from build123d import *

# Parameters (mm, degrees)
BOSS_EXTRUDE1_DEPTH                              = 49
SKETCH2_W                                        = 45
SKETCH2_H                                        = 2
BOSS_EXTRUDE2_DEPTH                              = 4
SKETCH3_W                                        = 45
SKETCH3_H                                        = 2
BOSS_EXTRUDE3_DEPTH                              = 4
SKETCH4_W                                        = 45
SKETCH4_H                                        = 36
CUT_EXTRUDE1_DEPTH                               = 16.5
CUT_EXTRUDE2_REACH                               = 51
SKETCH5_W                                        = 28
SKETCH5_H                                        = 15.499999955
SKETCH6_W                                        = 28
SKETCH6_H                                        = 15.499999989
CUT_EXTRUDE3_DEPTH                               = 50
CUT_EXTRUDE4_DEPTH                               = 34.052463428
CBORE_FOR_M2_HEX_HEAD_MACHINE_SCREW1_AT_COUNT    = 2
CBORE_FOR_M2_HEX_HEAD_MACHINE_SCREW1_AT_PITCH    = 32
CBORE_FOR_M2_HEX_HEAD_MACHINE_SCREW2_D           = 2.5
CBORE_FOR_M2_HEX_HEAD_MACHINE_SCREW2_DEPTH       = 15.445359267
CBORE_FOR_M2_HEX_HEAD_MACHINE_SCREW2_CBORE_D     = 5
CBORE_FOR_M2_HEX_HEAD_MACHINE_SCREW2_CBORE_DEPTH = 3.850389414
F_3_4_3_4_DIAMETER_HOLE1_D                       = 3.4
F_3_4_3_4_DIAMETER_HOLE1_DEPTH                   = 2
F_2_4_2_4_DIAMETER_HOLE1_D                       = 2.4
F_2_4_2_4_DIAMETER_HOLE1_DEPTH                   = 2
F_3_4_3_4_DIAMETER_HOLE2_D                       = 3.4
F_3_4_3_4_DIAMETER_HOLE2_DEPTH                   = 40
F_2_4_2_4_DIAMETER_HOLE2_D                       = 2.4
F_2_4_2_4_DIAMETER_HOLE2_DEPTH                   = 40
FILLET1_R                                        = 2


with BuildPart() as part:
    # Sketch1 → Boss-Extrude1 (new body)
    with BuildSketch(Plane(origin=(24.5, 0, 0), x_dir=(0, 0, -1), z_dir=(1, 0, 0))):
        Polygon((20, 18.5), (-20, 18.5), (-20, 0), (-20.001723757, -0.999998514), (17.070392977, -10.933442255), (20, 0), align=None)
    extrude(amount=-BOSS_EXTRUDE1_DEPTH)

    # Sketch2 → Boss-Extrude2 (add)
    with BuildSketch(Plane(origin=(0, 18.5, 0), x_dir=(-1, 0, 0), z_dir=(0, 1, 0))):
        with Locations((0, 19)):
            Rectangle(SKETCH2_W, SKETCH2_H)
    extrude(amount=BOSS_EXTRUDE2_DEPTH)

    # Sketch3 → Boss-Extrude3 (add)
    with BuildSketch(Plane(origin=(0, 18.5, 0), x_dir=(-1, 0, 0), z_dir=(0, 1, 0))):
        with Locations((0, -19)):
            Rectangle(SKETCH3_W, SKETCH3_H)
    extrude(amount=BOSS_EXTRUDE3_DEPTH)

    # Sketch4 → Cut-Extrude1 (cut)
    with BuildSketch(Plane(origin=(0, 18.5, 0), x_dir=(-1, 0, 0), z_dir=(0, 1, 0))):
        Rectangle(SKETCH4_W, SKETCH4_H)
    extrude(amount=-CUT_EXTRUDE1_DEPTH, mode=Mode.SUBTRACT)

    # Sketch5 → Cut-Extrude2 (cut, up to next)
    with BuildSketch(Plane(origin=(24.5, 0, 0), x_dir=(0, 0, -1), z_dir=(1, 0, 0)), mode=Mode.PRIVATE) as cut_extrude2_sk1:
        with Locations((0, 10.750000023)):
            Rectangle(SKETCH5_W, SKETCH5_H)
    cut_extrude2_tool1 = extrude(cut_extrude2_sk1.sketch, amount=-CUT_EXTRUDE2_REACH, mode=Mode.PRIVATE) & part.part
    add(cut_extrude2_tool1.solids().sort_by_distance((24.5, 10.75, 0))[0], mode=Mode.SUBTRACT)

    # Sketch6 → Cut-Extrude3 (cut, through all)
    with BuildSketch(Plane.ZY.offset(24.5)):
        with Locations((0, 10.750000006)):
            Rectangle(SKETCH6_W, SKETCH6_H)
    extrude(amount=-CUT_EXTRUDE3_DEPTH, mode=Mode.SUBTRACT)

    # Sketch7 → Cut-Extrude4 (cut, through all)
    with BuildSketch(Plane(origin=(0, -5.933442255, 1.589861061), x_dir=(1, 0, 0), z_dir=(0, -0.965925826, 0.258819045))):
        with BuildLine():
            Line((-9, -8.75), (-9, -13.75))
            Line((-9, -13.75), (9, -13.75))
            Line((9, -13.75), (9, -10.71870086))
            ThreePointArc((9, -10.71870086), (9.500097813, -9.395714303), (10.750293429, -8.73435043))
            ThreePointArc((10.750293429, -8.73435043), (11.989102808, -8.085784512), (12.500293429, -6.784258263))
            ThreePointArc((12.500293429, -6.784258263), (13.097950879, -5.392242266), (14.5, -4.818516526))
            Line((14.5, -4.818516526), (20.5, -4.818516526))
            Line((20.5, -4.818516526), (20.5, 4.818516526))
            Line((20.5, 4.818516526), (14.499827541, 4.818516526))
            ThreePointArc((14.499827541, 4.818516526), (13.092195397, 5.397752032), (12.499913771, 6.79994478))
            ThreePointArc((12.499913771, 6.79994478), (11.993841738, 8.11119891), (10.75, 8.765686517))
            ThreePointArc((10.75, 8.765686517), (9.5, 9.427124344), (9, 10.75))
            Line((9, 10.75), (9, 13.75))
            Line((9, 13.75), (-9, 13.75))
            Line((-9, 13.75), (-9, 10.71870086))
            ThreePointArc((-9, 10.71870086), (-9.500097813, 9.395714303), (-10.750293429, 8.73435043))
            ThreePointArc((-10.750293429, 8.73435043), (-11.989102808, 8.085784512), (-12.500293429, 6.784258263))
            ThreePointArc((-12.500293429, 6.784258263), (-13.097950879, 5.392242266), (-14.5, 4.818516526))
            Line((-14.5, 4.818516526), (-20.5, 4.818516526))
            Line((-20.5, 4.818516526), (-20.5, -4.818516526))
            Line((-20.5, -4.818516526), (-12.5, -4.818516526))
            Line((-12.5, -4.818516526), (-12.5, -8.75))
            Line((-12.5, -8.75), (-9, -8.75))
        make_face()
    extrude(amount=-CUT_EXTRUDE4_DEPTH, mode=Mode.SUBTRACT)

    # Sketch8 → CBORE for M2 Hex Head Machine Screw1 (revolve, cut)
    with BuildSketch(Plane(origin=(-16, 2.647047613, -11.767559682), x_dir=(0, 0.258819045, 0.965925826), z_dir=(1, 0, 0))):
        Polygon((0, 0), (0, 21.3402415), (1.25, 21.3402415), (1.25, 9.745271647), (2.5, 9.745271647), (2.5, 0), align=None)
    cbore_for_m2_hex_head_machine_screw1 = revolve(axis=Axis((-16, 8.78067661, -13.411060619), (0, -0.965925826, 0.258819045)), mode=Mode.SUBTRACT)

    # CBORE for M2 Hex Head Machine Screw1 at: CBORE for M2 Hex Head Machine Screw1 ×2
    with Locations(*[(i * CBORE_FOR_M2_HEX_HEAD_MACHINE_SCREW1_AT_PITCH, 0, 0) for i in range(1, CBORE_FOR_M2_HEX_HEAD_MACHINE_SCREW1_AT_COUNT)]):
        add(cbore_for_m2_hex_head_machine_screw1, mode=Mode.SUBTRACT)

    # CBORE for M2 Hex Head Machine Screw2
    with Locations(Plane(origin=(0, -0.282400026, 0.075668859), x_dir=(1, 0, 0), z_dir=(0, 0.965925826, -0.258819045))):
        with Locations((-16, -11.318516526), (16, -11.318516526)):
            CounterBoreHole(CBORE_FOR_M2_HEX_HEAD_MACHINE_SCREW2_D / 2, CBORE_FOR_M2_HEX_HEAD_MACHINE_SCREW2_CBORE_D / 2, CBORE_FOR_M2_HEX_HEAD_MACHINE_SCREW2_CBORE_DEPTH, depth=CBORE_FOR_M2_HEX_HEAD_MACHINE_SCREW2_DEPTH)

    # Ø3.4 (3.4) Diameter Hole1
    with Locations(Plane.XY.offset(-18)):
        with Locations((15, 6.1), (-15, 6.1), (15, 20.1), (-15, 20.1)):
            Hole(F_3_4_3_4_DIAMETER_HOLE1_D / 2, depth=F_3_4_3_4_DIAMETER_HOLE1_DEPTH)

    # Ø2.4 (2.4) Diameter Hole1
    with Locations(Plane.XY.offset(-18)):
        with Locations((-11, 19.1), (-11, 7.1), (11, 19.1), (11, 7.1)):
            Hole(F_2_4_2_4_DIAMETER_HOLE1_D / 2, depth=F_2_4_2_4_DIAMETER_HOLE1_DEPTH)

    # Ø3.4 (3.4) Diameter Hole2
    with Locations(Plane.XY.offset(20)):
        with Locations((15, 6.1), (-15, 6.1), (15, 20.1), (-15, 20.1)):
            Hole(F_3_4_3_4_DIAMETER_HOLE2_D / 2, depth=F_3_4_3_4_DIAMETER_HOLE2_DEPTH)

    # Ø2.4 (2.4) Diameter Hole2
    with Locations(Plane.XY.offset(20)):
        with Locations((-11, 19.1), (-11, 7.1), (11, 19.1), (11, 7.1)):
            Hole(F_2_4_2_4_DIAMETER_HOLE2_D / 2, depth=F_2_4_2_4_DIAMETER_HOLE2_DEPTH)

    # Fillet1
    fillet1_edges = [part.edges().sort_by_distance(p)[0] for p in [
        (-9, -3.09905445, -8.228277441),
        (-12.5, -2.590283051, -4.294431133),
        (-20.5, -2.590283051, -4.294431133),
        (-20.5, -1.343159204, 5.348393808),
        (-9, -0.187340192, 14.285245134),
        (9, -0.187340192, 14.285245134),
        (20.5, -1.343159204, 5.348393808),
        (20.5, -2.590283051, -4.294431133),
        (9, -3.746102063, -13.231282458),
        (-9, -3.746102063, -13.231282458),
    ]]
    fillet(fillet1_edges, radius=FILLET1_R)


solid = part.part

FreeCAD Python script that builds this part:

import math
import FreeCAD as App
import Part
import Sketcher

V = App.Vector
Q = App.Units.Quantity


def edges_at(feature, points):
    """Names of the edges that pass closest to the given points."""
    edges = feature.Shape.Edges
    near = lambda p: min(range(len(edges)), key=lambda i: edges[i].distToShape(Part.Vertex(*p))[0])
    return sorted({f"Edge{near(p) + 1}" for p in points})


def add_polygon(sketch, points):
    """Adds a closed chain of lines whose ends are joined by coincident constraints."""
    first, n = sketch.GeometryCount, len(points)
    for a, b in zip(points, points[1:] + points[:1]):
        sketch.addGeometry(Part.LineSegment(App.Vector(*a, 0), App.Vector(*b, 0)), False)
    for i in range(n):
        sketch.addConstraint(Sketcher.Constraint("Coincident", first + i, 2, first + (i + 1) % n, 1))

doc = App.newDocument("Part")
body = doc.addObject("PartDesign::Body", "Body")

# Sketch on YZ plane
sketch1 = doc.addObject("Sketcher::SketchObject", "Sketch")
body.addObject(sketch1)
sketch1.AttachmentSupport = (doc.YZ_Plane, [""])
sketch1.MapMode = "FlatFace"
sketch1.AttachmentOffset = App.Placement(V(0, 0, 24.5), App.Rotation())
add_polygon(sketch1, [(18.5, -20), (18.5, 20), (0, 20), (-1, 20), (-10.9, -17.1), (0, -20)])  # lines 0-5
sketch1.addConstraint([
    Sketcher.Constraint("Vertical", 0),
    Sketcher.Constraint("Horizontal", 1),
    Sketcher.Constraint("Horizontal", 5),
    Sketcher.Constraint("Symmetric", 1, 2, 4, 2, -1, 1),
    Sketcher.Constraint("PointOnObject", 1, 2, -2),
    Sketcher.Constraint("Perpendicular", 3, 4),
    Sketcher.Constraint("DistanceY", 0, 1, 0, 2, Q("40 mm")),
    Sketcher.Constraint("Angle", 3, Q("-105 deg")),
    Sketcher.Constraint("Distance", 2, Q("1 mm")),
    Sketcher.Constraint("DistanceX", 1, 2, 1, 1, Q("18.5 mm")),
    Sketcher.Constraint("Distance", 3, Q("38.379879 mm")),
])
pad1 = doc.addObject("PartDesign::Pad", "Pad")
body.addObject(pad1)
pad1.Profile = sketch1
pad1.Length = 49
pad1.Reversed = True

# Sketch on XZ plane
sketch2 = doc.addObject("Sketcher::SketchObject", "Sketch001")
body.addObject(sketch2)
sketch2.AttachmentSupport = (doc.XZ_Plane, [""])
sketch2.MapMode = "FlatFace"
sketch2.AttachmentOffset = App.Placement(V(0, 0, -18.5), App.Rotation())
add_polygon(sketch2, [(22.5, 20), (22.5, 18), (-22.5, 18), (-22.5, 20)])  # lines 0-3
sketch2.addConstraint([
    Sketcher.Constraint("Vertical", 0),
    Sketcher.Constraint("Horizontal", 1),
    Sketcher.Constraint("Vertical", 2),
    Sketcher.Constraint("Horizontal", 3),
    Sketcher.Constraint("DistanceX", 1, 2, 1, 1, Q("45 mm")),
    Sketcher.Constraint("DistanceY", 0, 2, 0, 1, Q("2 mm")),
    Sketcher.Constraint("DistanceY", -1, 1, 0, 2, Q("18 mm")),
    Sketcher.Constraint("DistanceX", -1, 1, 0, 2, Q("22.5 mm")),
])
pad2 = doc.addObject("PartDesign::Pad", "Pad001")
body.addObject(pad2)
pad2.Profile = sketch2
pad2.Length = 4
pad2.Reversed = True

# Sketch on XZ plane
sketch3 = doc.addObject("Sketcher::SketchObject", "Sketch002")
body.addObject(sketch3)
sketch3.AttachmentSupport = (doc.XZ_Plane, [""])
sketch3.MapMode = "FlatFace"
sketch3.AttachmentOffset = App.Placement(V(0, 0, -18.5), App.Rotation())
add_polygon(sketch3, [(22.5, -18), (22.5, -20), (-22.5, -20), (-22.5, -18)])  # lines 0-3
sketch3.addConstraint([
    Sketcher.Constraint("Vertical", 0),
    Sketcher.Constraint("Horizontal", 1),
    Sketcher.Constraint("Vertical", 2),
    Sketcher.Constraint("Horizontal", 3),
    Sketcher.Constraint("DistanceX", 1, 2, 1, 1, Q("45 mm")),
    Sketcher.Constraint("DistanceY", 0, 2, 0, 1, Q("2 mm")),
    Sketcher.Constraint("DistanceY", 0, 2, -1, 1, Q("20 mm")),
    Sketcher.Constraint("DistanceX", -1, 1, 0, 2, Q("22.5 mm")),
])
pad3 = doc.addObject("PartDesign::Pad", "Pad002")
body.addObject(pad3)
pad3.Profile = sketch3
pad3.Length = 4
pad3.Reversed = True

# Sketch on XZ plane
sketch4 = doc.addObject("Sketcher::SketchObject", "Sketch003")
body.addObject(sketch4)
sketch4.AttachmentSupport = (doc.XZ_Plane, [""])
sketch4.MapMode = "FlatFace"
sketch4.AttachmentOffset = App.Placement(V(0, 0, -18.5), App.Rotation())
add_polygon(sketch4, [(22, 18), (22, -18), (-22, -18), (-22, 18)])  # lines 0-3
sketch4.addConstraint([
    Sketcher.Constraint("Vertical", 0),
    Sketcher.Constraint("Horizontal", 1),
    Sketcher.Constraint("Vertical", 2),
    Sketcher.Constraint("Horizontal", 3),
    Sketcher.Constraint("Symmetric", 0, 2, 2, 2, -1, 1),
    Sketcher.Constraint("DistanceX", 1, 2, 1, 1, Q("45 mm")),
    Sketcher.Constraint("DistanceY", 0, 2, 0, 1, Q("36 mm")),
])
pocket1 = doc.addObject("PartDesign::Pocket", "Pocket")
body.addObject(pocket1)
pocket1.Profile = sketch4
pocket1.Length = 16.5
pocket1.Reversed = True

# Sketch on YZ plane
sketch5 = doc.addObject("Sketcher::SketchObject", "Sketch004")
body.addObject(sketch5)
sketch5.AttachmentSupport = (doc.YZ_Plane, [""])
sketch5.MapMode = "FlatFace"
sketch5.AttachmentOffset = App.Placement(V(0, 0, 24.5), App.Rotation())
add_polygon(sketch5, [(19, 14), (3, 14), (3, -14), (19, -14)])  # lines 0-3
sketch5.addConstraint([
    Sketcher.Constraint("Horizontal", 0),
    Sketcher.Constraint("Vertical", 1),
    Sketcher.Constraint("Horizontal", 2),
    Sketcher.Constraint("Vertical", 3),
    Sketcher.Constraint("DistanceY", 1, 2, 1, 1, Q("28 mm")),
    Sketcher.Constraint("DistanceX", 0, 2, 0, 1, Q("15.5 mm")),
    Sketcher.Constraint("DistanceX", -1, 1, 0, 2, Q("3 mm")),
    Sketcher.Constraint("DistanceY", -1, 1, 0, 2, Q("14 mm")),
])
pocket2 = doc.addObject("PartDesign::Pocket", "Pocket001")
body.addObject(pocket2)
pocket2.Profile = sketch5
pocket2.Type = "UpToFirst"

# Sketch on YZ plane
sketch6 = doc.addObject("Sketcher::SketchObject", "Sketch005")
body.addObject(sketch6)
sketch6.AttachmentSupport = (doc.YZ_Plane, [""])
sketch6.MapMode = "FlatFace"
sketch6.AttachmentOffset = App.Placement(V(0, 0, -24.5), App.Rotation())
add_polygon(sketch6, [(19, -14), (3, -14), (3, 14), (19, 14)])  # lines 0-3
sketch6.addConstraint([
    Sketcher.Constraint("Horizontal", 0),
    Sketcher.Constraint("Vertical", 1),
    Sketcher.Constraint("Horizontal", 2),
    Sketcher.Constraint("Vertical", 3),
    Sketcher.Constraint("DistanceY", 1, 1, 1, 2, Q("28 mm")),
    Sketcher.Constraint("DistanceX", 0, 2, 0, 1, Q("15.5 mm")),
    Sketcher.Constraint("DistanceX", -1, 1, 0, 2, Q("3 mm")),
    Sketcher.Constraint("DistanceY", 0, 2, -1, 1, Q("14 mm")),
])
pocket3 = doc.addObject("PartDesign::Pocket", "Pocket002")
body.addObject(pocket3)
pocket3.Profile = sketch6
pocket3.Type = "ThroughAll"
pocket3.Reversed = True

# Sketch on an angled plane
sketch7 = doc.addObject("Sketcher::SketchObject", "Sketch006")
body.addObject(sketch7)
sketch7.Placement = App.Placement(V(0, -5.933442, 1.589861), App.Rotation(V(1, 0, 0), V(0, 0.258819045, 0.965925826), V(0, -0.965925826, 0.258819045), "ZXY"))
sketch7.addGeometry([
    Part.LineSegment(V(-9, -8.7, 0), V(-9, -13.7, 0)),  # 0
    Part.LineSegment(V(-9, -13.7, 0), V(9, -13.7, 0)),  # 1
    Part.LineSegment(V(9, -13.7, 0), V(9, -10.7, 0)),  # 2
    Part.ArcOfCircle(Part.Circle(V(11, -10.7, 0), V(0, 0, 1), 2), math.radians(97), math.radians(180)),  # 3
    Part.ArcOfCircle(Part.Circle(V(10.5, -6.7, 0), V(0, 0, 1), 2), math.radians(-83), math.radians(-1)),  # 4
    Part.ArcOfCircle(Part.Circle(V(14.5, -6.8, 0), V(0, 0, 1), 2), math.radians(90), math.radians(179)),  # 5
    Part.LineSegment(V(14.5, -4.8, 0), V(20.5, -4.8, 0)),  # 6
    Part.LineSegment(V(20.5, -4.8, 0), V(20.5, 4.8, 0)),  # 7
    Part.LineSegment(V(20.5, 4.8, 0), V(14.5, 4.8, 0)),  # 8
    Part.ArcOfCircle(Part.Circle(V(14.5, 6.8, 0), V(0, 0, 1), 2), math.radians(-179), math.radians(-90)),  # 9
    Part.ArcOfCircle(Part.Circle(V(10.5, 6.8, 0), V(0, 0, 1), 2), math.radians(1), math.radians(83)),  # 10
    Part.ArcOfCircle(Part.Circle(V(11, 10.7, 0), V(0, 0, 1), 2), math.radians(180), math.radians(263)),  # 11
    Part.LineSegment(V(9, 10.7, 0), V(9, 13.7, 0)),  # 12
    Part.LineSegment(V(9, 13.7, 0), V(-9, 13.7, 0)),  # 13
    Part.LineSegment(V(-9, 13.7, 0), V(-9, 10.7, 0)),  # 14
    Part.ArcOfCircle(Part.Circle(V(-11, 10.7, 0), V(0, 0, 1), 2), math.radians(-83), math.radians(0)),  # 15
    Part.ArcOfCircle(Part.Circle(V(-10.5, 6.7, 0), V(0, 0, 1), 2), math.radians(97), math.radians(179)),  # 16
    Part.ArcOfCircle(Part.Circle(V(-14.5, 6.8, 0), V(0, 0, 1), 2), math.radians(-90), math.radians(-1)),  # 17
    Part.LineSegment(V(-14.5, 4.8, 0), V(-20.5, 4.8, 0)),  # 18
    Part.LineSegment(V(-20.5, 4.8, 0), V(-20.5, -4.8, 0)),  # 19
    Part.LineSegment(V(-20.5, -4.8, 0), V(-12.5, -4.8, 0)),  # 20
    Part.LineSegment(V(-12.5, -4.8, 0), V(-12.5, -8.7, 0)),  # 21
    Part.LineSegment(V(-12.5, -8.7, 0), V(-9, -8.7, 0)),  # 22
], False)
sketch7.addConstraint([
    Sketcher.Constraint("Coincident", 0, 2, 1, 1),
    Sketcher.Constraint("Coincident", 1, 2, 2, 1),
    Sketcher.Constraint("Tangent", 2, 2, 3, 2),
    Sketcher.Constraint("Tangent", 3, 1, 4, 1),
    Sketcher.Constraint("Tangent", 4, 2, 5, 2),
    Sketcher.Constraint("Tangent", 5, 1, 6, 1),
    Sketcher.Constraint("Coincident", 6, 2, 7, 1),
    Sketcher.Constraint("Coincident", 7, 2, 8, 1),
    Sketcher.Constraint("Tangent", 8, 2, 9, 2),
    Sketcher.Constraint("Tangent", 9, 1, 10, 1),
    Sketcher.Constraint("Tangent", 10, 2, 11, 2),
    Sketcher.Constraint("Tangent", 11, 1, 12, 1),
    Sketcher.Constraint("Coincident", 12, 2, 13, 1),
    Sketcher.Constraint("Coincident", 13, 2, 14, 1),
    Sketcher.Constraint("Tangent", 14, 2, 15, 2),
    Sketcher.Constraint("Tangent", 15, 1, 16, 1),
    Sketcher.Constraint("Tangent", 16, 2, 17, 2),
    Sketcher.Constraint("Tangent", 17, 1, 18, 1),
    Sketcher.Constraint("Coincident", 18, 2, 19, 1),
    Sketcher.Constraint("Coincident", 19, 2, 20, 1),
    Sketcher.Constraint("Coincident", 20, 2, 21, 1),
    Sketcher.Constraint("Coincident", 21, 2, 22, 1),
    Sketcher.Constraint("Coincident", 22, 2, 0, 1),
    Sketcher.Constraint("Vertical", 0),
    Sketcher.Constraint("Horizontal", 1),
    Sketcher.Constraint("Vertical", 2),
    Sketcher.Constraint("Horizontal", 6),
    Sketcher.Constraint("Vertical", 7),
    Sketcher.Constraint("Horizontal", 8),
    Sketcher.Constraint("Vertical", 12),
    Sketcher.Constraint("Horizontal", 13),
    Sketcher.Constraint("Vertical", 14),
    Sketcher.Constraint("Horizontal", 18),
    Sketcher.Constraint("Vertical", 19),
    Sketcher.Constraint("Horizontal", 20),
    Sketcher.Constraint("Vertical", 21),
    Sketcher.Constraint("Horizontal", 22),
    Sketcher.Constraint("Equal", 3, 4),
    Sketcher.Constraint("Equal", 4, 5),
    Sketcher.Constraint("Equal", 5, 9),
    Sketcher.Constraint("Equal", 9, 10),
    Sketcher.Constraint("Equal", 10, 11),
    Sketcher.Constraint("Equal", 11, 15),
    Sketcher.Constraint("Equal", 15, 16),
    Sketcher.Constraint("Equal", 16, 17),
    Sketcher.Constraint("Symmetric", 3, 3, 15, 3, -1, 1),
    Sketcher.Constraint("Symmetric", 5, 3, 17, 3, -1, 1),
    Sketcher.Constraint("Symmetric", 0, 2, 12, 2, -1, 1),
    Sketcher.Constraint("Symmetric", 7, 2, 19, 2, -1, 1),
    Sketcher.Constraint("Horizontal", 9, 3, 17, 3),
    Sketcher.Constraint("Vertical", 3, 3, 11, 3),
    Sketcher.Constraint("Radius", 3, Q("2 mm")),
    Sketcher.Constraint("DistanceX", 1, 1, 1, 2, Q("18 mm")),
    Sketcher.Constraint("DistanceX", 6, 1, 6, 2, Q("6 mm")),
    Sketcher.Constraint("DistanceX", 20, 1, 20, 2, Q("8 mm")),
    Sketcher.Constraint("DistanceY", 0, 2, 0, 1, Q("5 mm")),
    Sketcher.Constraint("DistanceY", 12, 1, 12, 2, Q("3 mm")),
    Sketcher.Constraint("DistanceX", 22, 1, 22, 2, Q("3.5 mm")),
    Sketcher.Constraint("DistanceX", 10, 3, 5, 3, Q("4 mm")),
    Sketcher.Constraint("DistanceY", 16, 3, 11, 3, Q("4 mm")),
    Sketcher.Constraint("DistanceY", 4, 3, 11, 3, Q("17.5 mm")),
    Sketcher.Constraint("DistanceY", 7, 1, 7, 2, Q("9.637033 mm")),
])
pocket4 = doc.addObject("PartDesign::Pocket", "Pocket003")
body.addObject(pocket4)
pocket4.Profile = sketch7
pocket4.Type = "ThroughAll"

# Sketch on YZ plane
sketch8 = doc.addObject("Sketcher::SketchObject", "Sketch007")
body.addObject(sketch8)
sketch8.AttachmentSupport = (doc.YZ_Plane, [""])
sketch8.MapMode = "FlatFace"
sketch8.AttachmentOffset = App.Placement(V(0, 0, -16), App.Rotation())
add_polygon(sketch8, [(-18, -6.2), (2.6, -11.8), (3.3, -9.4), (-6.1, -6.8), (-6.4, -8), (-17.6, -5)])  # lines 0-5
sketch8.addGeometry(Part.LineSegment(V(2.6, -11.8, 0), V(-18, -6.2, 0)), True)  # axis
sketch8.addConstraint([
    Sketcher.Constraint("Coincident", 6, 1, 0, 2),
    Sketcher.Constraint("Coincident", 6, 2, 5, 2),
    Sketcher.Constraint("Perpendicular", 0, 1),
    Sketcher.Constraint("Perpendicular", 1, 2),
    Sketcher.Constraint("Perpendicular", 2, 3),
    Sketcher.Constraint("Perpendicular", 3, 4),
    Sketcher.Constraint("Perpendicular", 4, 5),
    Sketcher.Constraint("Equal", 3, 5),
    Sketcher.Constraint("Angle", 0, Q("-15 deg")),
    Sketcher.Constraint("Distance", 1, Q("2.5 mm")),
    Sketcher.Constraint("DistanceY", 3, 2, 4, 2, Q("3.000999 mm")),
    Sketcher.Constraint("DistanceY", 5, 2, -1, 1, Q("6.244299 mm")),
    Sketcher.Constraint("Distance", 0, Q("21.340241 mm")),
    Sketcher.Constraint("DistanceX", 3, 2, -1, 1, Q("6.442638 mm")),
])
groove = doc.addObject("PartDesign::Groove", "Groove")
body.addObject(groove)
groove.Profile = sketch8
groove.ReferenceAxis = (sketch8, ["Axis0"])
groove.Angle = 360
doc.recompute()

linearpattern = doc.addObject("PartDesign::LinearPattern", "LinearPattern")
body.addObject(linearpattern)
linearpattern.Originals = [groove]
linearpattern.Direction = (doc.X_Axis, [""])
linearpattern.Mode = "offset"
linearpattern.Offset = 32
linearpattern.Occurrences = 2
body.Tip = linearpattern

# Sketch on an angled plane
sketch9 = doc.addObject("Sketcher::SketchObject", "Sketch008")
body.addObject(sketch9)
sketch9.Placement = App.Placement(V(0, -0.2824, 0.075669), App.Rotation(V(1, 0, 0), V(0, -0.258819045, -0.965925826), V(0, 0.965925826, -0.258819045), "ZXY"))
sketch9.addGeometry([
    Part.Circle(V(-16, -11.3, 0), V(0, 0, 1), 1.2),
    Part.Circle(V(16, -11.3, 0), V(0, 0, 1), 1.2),
], False)
sketch9.addConstraint([
    Sketcher.Constraint("Equal", 0, 1),
    Sketcher.Constraint("Symmetric", 0, 3, 1, 3, -2),
    Sketcher.Constraint("Diameter", 0, Q("2.5 mm")),
    Sketcher.Constraint("DistanceX", 0, 3, -1, 1, Q("16 mm")),
    Sketcher.Constraint("DistanceY", 0, 3, -1, 1, Q("11.318517 mm")),
])
doc.recompute()
hole = doc.addObject("PartDesign::Hole", "Hole")
body.addObject(hole)
hole.Profile = sketch9
hole.ThreadType = "None"
hole.Diameter = 2.5
hole.DepthType = "Dimension"
hole.Depth = 15.445359
hole.DrillPoint = "Flat"
hole.HoleCutType = "Counterbore"
hole.HoleCutDiameter = 5
hole.HoleCutDepth = 3.850389

# Sketch on XY plane
sketch10 = doc.addObject("Sketcher::SketchObject", "Sketch009")
body.addObject(sketch10)
sketch10.AttachmentSupport = (doc.XY_Plane, [""])
sketch10.MapMode = "FlatFace"
sketch10.AttachmentOffset = App.Placement(V(0, 0, -18), App.Rotation())
sketch10.addGeometry([
    Part.Circle(V(15, 6.1, 0), V(0, 0, 1), 1.7),
    Part.Circle(V(-15, 6.1, 0), V(0, 0, 1), 1.7),
    Part.Circle(V(15, 20.1, 0), V(0, 0, 1), 1.7),
    Part.Circle(V(-15, 20.1, 0), V(0, 0, 1), 1.7),
], False)
sketch10.addConstraint([
    Sketcher.Constraint("Equal", 0, 1),
    Sketcher.Constraint("Equal", 1, 2),
    Sketcher.Constraint("Equal", 2, 3),
    Sketcher.Constraint("Symmetric", 0, 3, 1, 3, -2),
    Sketcher.Constraint("Symmetric", 2, 3, 3, 3, -2),
    Sketcher.Constraint("Vertical", 0, 3, 2, 3),
    Sketcher.Constraint("Diameter", 0, Q("3.4 mm")),
    Sketcher.Constraint("DistanceX", -1, 1, 0, 3, Q("15 mm")),
    Sketcher.Constraint("DistanceY", 0, 3, 2, 3, Q("14 mm")),
    Sketcher.Constraint("DistanceY", -1, 1, 0, 3, Q("6.1 mm")),
])
doc.recompute()
hole2 = doc.addObject("PartDesign::Hole", "Hole001")
body.addObject(hole2)
hole2.Profile = sketch10
hole2.ThreadType = "None"
hole2.Diameter = 3.4
hole2.DepthType = "Dimension"
hole2.Depth = 2
hole2.DrillPoint = "Flat"

# Sketch on XY plane
sketch11 = doc.addObject("Sketcher::SketchObject", "Sketch010")
body.addObject(sketch11)
sketch11.AttachmentSupport = (doc.XY_Plane, [""])
sketch11.MapMode = "FlatFace"
sketch11.AttachmentOffset = App.Placement(V(0, 0, -18), App.Rotation())
sketch11.addGeometry([
    Part.Circle(V(-11, 19.1, 0), V(0, 0, 1), 1.2),
    Part.Circle(V(-11, 7.1, 0), V(0, 0, 1), 1.2),
    Part.Circle(V(11, 19.1, 0), V(0, 0, 1), 1.2),
    Part.Circle(V(11, 7.1, 0), V(0, 0, 1), 1.2),
], False)
sketch11.addConstraint([
    Sketcher.Constraint("Equal", 0, 1),
    Sketcher.Constraint("Equal", 1, 2),
    Sketcher.Constraint("Equal", 2, 3),
    Sketcher.Constraint("Symmetric", 0, 3, 2, 3, -2),
    Sketcher.Constraint("Symmetric", 1, 3, 3, 3, -2),
    Sketcher.Constraint("Vertical", 0, 3, 1, 3),
    Sketcher.Constraint("Diameter", 0, Q("2.4 mm")),
    Sketcher.Constraint("DistanceX", 0, 3, -1, 1, Q("11 mm")),
    Sketcher.Constraint("DistanceY", 1, 3, 0, 3, Q("12 mm")),
    Sketcher.Constraint("DistanceY", -1, 1, 0, 3, Q("19.1 mm")),
])
doc.recompute()
hole3 = doc.addObject("PartDesign::Hole", "Hole002")
body.addObject(hole3)
hole3.Profile = sketch11
hole3.ThreadType = "None"
hole3.Diameter = 2.4
hole3.DepthType = "Dimension"
hole3.Depth = 2
hole3.DrillPoint = "Flat"

# Sketch on XY plane
sketch12 = doc.addObject("Sketcher::SketchObject", "Sketch011")
body.addObject(sketch12)
sketch12.AttachmentSupport = (doc.XY_Plane, [""])
sketch12.MapMode = "FlatFace"
sketch12.AttachmentOffset = App.Placement(V(0, 0, 20), App.Rotation())
sketch12.addGeometry([
    Part.Circle(V(15, 6.1, 0), V(0, 0, 1), 1.7),
    Part.Circle(V(-15, 6.1, 0), V(0, 0, 1), 1.7),
    Part.Circle(V(15, 20.1, 0), V(0, 0, 1), 1.7),
    Part.Circle(V(-15, 20.1, 0), V(0, 0, 1), 1.7),
], False)
sketch12.addConstraint([
    Sketcher.Constraint("Equal", 0, 1),
    Sketcher.Constraint("Equal", 1, 2),
    Sketcher.Constraint("Equal", 2, 3),
    Sketcher.Constraint("Symmetric", 0, 3, 1, 3, -2),
    Sketcher.Constraint("Symmetric", 2, 3, 3, 3, -2),
    Sketcher.Constraint("Vertical", 0, 3, 2, 3),
    Sketcher.Constraint("Diameter", 0, Q("3.4 mm")),
    Sketcher.Constraint("DistanceX", -1, 1, 0, 3, Q("15 mm")),
    Sketcher.Constraint("DistanceY", 0, 3, 2, 3, Q("14 mm")),
    Sketcher.Constraint("DistanceY", -1, 1, 0, 3, Q("6.1 mm")),
])
doc.recompute()
hole4 = doc.addObject("PartDesign::Hole", "Hole003")
body.addObject(hole4)
hole4.Profile = sketch12
hole4.ThreadType = "None"
hole4.Diameter = 3.4
hole4.DepthType = "Dimension"
hole4.Depth = 40
hole4.DrillPoint = "Flat"

# Sketch on XY plane
sketch13 = doc.addObject("Sketcher::SketchObject", "Sketch012")
body.addObject(sketch13)
sketch13.AttachmentSupport = (doc.XY_Plane, [""])
sketch13.MapMode = "FlatFace"
sketch13.AttachmentOffset = App.Placement(V(0, 0, 20), App.Rotation())
sketch13.addGeometry([
    Part.Circle(V(-11, 19.1, 0), V(0, 0, 1), 1.2),
    Part.Circle(V(-11, 7.1, 0), V(0, 0, 1), 1.2),
    Part.Circle(V(11, 19.1, 0), V(0, 0, 1), 1.2),
    Part.Circle(V(11, 7.1, 0), V(0, 0, 1), 1.2),
], False)
sketch13.addConstraint([
    Sketcher.Constraint("Equal", 0, 1),
    Sketcher.Constraint("Equal", 1, 2),
    Sketcher.Constraint("Equal", 2, 3),
    Sketcher.Constraint("Symmetric", 0, 3, 2, 3, -2),
    Sketcher.Constraint("Symmetric", 1, 3, 3, 3, -2),
    Sketcher.Constraint("Vertical", 0, 3, 1, 3),
    Sketcher.Constraint("Diameter", 0, Q("2.4 mm")),
    Sketcher.Constraint("DistanceX", 0, 3, -1, 1, Q("11 mm")),
    Sketcher.Constraint("DistanceY", 1, 3, 0, 3, Q("12 mm")),
    Sketcher.Constraint("DistanceY", -1, 1, 0, 3, Q("19.1 mm")),
])
doc.recompute()
hole5 = doc.addObject("PartDesign::Hole", "Hole004")
body.addObject(hole5)
hole5.Profile = sketch13
hole5.ThreadType = "None"
hole5.Diameter = 2.4
hole5.DepthType = "Dimension"
hole5.Depth = 40
hole5.DrillPoint = "Flat"
doc.recompute()

fillet = doc.addObject("PartDesign::Fillet", "Fillet")
body.addObject(fillet)
fillet.Base = (hole5, edges_at(hole5, [
    (-9, -3.099, -8.228),
    (-12.5, -2.59, -4.294),
    (-20.5, -2.59, -4.294),
    (-20.5, -1.343, 5.348),
    (-9, -0.187, 14.285),
    (9, -0.187, 14.285),
    (20.5, -1.343, 5.348),
    (20.5, -2.59, -4.294),
    (9, -3.746, -13.231),
    (-9, -3.746, -13.231),
]))
fillet.Radius = 2

doc.recompute()
